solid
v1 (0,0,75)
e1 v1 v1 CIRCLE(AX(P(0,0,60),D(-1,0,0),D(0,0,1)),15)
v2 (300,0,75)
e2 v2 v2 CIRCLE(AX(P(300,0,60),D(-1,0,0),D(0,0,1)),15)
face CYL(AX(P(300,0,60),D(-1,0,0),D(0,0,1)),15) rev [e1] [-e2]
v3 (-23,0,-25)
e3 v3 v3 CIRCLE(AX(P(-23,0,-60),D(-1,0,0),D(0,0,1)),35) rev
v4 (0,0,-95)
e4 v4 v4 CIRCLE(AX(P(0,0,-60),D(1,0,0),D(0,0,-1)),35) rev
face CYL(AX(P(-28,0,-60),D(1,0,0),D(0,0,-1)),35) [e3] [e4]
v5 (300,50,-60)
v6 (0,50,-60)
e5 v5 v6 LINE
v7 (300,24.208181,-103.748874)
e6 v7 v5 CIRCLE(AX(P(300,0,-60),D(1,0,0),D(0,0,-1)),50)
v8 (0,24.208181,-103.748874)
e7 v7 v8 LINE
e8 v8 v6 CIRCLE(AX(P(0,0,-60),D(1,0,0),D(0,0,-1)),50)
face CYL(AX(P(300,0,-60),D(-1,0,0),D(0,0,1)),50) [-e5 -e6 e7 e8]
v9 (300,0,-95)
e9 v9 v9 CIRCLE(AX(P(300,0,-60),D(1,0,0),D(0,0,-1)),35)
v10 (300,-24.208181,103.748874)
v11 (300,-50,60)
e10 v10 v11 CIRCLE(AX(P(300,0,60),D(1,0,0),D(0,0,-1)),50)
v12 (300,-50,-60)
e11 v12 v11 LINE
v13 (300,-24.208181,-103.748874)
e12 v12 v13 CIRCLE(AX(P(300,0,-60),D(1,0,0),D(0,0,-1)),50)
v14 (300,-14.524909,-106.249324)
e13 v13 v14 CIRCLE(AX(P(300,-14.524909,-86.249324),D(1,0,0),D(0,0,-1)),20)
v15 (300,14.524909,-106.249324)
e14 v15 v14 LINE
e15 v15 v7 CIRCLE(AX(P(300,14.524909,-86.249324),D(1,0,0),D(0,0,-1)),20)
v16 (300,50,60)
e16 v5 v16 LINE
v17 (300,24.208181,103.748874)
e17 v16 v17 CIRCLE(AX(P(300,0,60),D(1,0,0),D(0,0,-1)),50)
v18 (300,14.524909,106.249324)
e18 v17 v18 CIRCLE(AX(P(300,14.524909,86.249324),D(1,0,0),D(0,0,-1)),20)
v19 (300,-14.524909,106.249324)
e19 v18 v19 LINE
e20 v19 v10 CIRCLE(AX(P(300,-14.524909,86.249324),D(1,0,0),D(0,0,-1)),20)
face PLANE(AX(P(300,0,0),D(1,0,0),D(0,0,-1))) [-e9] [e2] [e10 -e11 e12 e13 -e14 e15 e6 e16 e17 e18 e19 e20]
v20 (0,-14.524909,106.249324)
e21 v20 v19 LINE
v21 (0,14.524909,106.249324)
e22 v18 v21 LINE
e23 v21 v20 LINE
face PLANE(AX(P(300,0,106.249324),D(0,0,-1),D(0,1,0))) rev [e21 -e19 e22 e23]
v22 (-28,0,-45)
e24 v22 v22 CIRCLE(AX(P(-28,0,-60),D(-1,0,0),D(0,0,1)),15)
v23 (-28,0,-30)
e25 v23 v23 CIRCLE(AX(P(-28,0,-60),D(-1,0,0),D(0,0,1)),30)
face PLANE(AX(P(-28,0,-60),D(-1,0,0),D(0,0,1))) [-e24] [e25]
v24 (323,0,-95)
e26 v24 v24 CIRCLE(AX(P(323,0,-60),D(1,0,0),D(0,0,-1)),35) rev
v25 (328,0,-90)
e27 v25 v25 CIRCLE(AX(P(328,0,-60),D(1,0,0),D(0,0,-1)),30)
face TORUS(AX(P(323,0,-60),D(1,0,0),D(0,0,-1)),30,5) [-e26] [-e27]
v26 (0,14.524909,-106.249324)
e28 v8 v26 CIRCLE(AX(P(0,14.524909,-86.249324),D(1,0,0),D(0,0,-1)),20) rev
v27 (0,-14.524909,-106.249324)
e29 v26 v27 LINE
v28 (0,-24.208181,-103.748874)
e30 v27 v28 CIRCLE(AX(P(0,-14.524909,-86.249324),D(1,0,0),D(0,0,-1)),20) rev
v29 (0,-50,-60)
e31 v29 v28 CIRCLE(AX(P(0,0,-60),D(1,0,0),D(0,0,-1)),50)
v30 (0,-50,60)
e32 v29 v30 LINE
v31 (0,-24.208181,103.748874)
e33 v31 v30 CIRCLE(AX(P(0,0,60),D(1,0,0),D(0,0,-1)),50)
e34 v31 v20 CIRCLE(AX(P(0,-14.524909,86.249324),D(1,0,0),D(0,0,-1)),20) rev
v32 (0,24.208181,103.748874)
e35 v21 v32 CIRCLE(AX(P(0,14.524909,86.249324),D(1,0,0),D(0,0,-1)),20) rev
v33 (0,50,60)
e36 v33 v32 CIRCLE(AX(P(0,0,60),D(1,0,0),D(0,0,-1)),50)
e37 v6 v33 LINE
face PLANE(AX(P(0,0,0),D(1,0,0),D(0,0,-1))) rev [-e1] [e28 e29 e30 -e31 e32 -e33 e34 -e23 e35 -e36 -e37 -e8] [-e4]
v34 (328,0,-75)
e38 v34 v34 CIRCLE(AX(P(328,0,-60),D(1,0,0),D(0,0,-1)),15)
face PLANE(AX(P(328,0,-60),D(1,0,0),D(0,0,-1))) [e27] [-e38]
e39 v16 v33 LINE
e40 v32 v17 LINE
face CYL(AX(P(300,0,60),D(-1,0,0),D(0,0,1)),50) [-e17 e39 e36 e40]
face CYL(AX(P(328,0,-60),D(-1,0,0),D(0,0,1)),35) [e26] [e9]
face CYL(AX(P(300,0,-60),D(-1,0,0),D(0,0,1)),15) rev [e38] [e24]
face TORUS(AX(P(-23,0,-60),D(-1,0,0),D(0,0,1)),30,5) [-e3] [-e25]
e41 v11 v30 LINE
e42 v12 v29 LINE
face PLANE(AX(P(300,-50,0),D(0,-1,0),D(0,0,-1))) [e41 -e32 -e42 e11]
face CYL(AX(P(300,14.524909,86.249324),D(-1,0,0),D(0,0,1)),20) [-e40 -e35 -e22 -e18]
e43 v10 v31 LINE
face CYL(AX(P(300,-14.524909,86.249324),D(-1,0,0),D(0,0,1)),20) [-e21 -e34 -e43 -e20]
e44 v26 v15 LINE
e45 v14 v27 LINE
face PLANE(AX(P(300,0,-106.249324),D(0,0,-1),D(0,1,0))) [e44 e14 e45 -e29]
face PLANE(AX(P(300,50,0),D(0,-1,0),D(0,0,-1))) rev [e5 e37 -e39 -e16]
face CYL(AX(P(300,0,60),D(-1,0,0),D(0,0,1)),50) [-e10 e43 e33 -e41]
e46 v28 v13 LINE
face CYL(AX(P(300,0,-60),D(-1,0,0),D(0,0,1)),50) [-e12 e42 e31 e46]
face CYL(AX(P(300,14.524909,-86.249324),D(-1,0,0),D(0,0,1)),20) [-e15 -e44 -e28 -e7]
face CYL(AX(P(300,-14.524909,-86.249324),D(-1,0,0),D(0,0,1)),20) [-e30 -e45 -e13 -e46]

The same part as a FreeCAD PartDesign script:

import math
import FreeCAD as App
import Part
import Sketcher


def edges_at(feature, points):
    """Names of the edges that pass closest to the given points."""
    edges = feature.Shape.Edges
    near = lambda p: min(range(len(edges)), key=lambda i: edges[i].distToShape(Part.Vertex(*p))[0])
    return sorted({f"Edge{near(p) + 1}" for p in points})

doc = App.newDocument("Part")
body = doc.addObject("PartDesign::Body", "Body")

# Sketch on YZ plane
sketch1 = body.newObject("Sketcher::SketchObject", "Sketch")
sketch1.AttachmentSupport = (doc.getObject("YZ_Plane"), [""])
sketch1.MapMode = "FlatFace"
sketch1.addGeometry([
    Part.LineSegment(App.Vector(50, -60, 0), App.Vector(50, 60, 0)),  # 0
    Part.ArcOfCircle(Part.Circle(App.Vector(0, 60, 0), App.Vector(0, 0, 1), 50), math.radians(0), math.radians(68)),  # 1
    Part.LineSegment(App.Vector(19, 106, 0), App.Vector(-19, 106, 0)),  # 2
    Part.ArcOfCircle(Part.Circle(App.Vector(0, 60, 0), App.Vector(0, 0, 1), 50), math.radians(112), math.radians(180)),  # 3
    Part.LineSegment(App.Vector(-50, 60, 0), App.Vector(-50, -60, 0)),  # 4
    Part.ArcOfCircle(Part.Circle(App.Vector(0, -60, 0), App.Vector(0, 0, 1), 50), math.radians(180), math.radians(248)),  # 5
    Part.LineSegment(App.Vector(-19, -106, 0), App.Vector(19, -106, 0)),  # 6
    Part.ArcOfCircle(Part.Circle(App.Vector(0, -60, 0), App.Vector(0, 0, 1), 50), math.radians(-68), math.radians(0)),  # 7
], False)
sketch1.addConstraint([
    Sketcher.Constraint("Tangent", 0, 2, 1, 1),
    Sketcher.Constraint("Coincident", 1, 2, 2, 1),
    Sketcher.Constraint("Coincident", 2, 2, 3, 1),
    Sketcher.Constraint("Tangent", 3, 2, 4, 1),
    Sketcher.Constraint("Tangent", 4, 2, 5, 1),
    Sketcher.Constraint("Coincident", 5, 2, 6, 1),
    Sketcher.Constraint("Coincident", 6, 2, 7, 1),
    Sketcher.Constraint("Tangent", 7, 2, 0, 1),
    Sketcher.Constraint("Vertical", 0),
    Sketcher.Constraint("Horizontal", 2),
    Sketcher.Constraint("Vertical", 4),
    Sketcher.Constraint("Horizontal", 6),
    Sketcher.Constraint("Coincident", 3, 3, 1, 3),
    Sketcher.Constraint("Coincident", 7, 3, 5, 3),
    Sketcher.Constraint("Equal", 1, 3),
    Sketcher.Constraint("Equal", 3, 5),
    Sketcher.Constraint("Symmetric", 1, 3, 5, 3, -1, 1),
    Sketcher.Constraint("Vertical", 2, 2, 5, 2),
    Sketcher.Constraint("Radius", 1, 50.0),
    Sketcher.Constraint("DistanceX", 2, 2, 2, 1, 38.0),
    Sketcher.Constraint("DistanceY", 0, 1, 0, 2, 120.0),
])
pad1 = body.newObject("PartDesign::Pad", "Pad")
pad1.Profile = sketch1
pad1.Length = 300

# Sketch on YZ plane
sketch2 = body.newObject("Sketcher::SketchObject", "Sketch001")
sketch2.AttachmentSupport = (doc.getObject("YZ_Plane"), [""])
sketch2.MapMode = "FlatFace"
sketch2.addGeometry([
    Part.Circle(App.Vector(0, 60, 0), App.Vector(0, 0, 1), 15),
    Part.Circle(App.Vector(0, -60, 0), App.Vector(0, 0, 1), 15),
], False)
sketch2.addConstraint([
    Sketcher.Constraint("Equal", 0, 1),
    Sketcher.Constraint("Symmetric", 0, 3, 1, 3, -1, 1),
    Sketcher.Constraint("PointOnObject", 0, 3, -2),
    Sketcher.Constraint("Diameter", 0, 30.0),
    Sketcher.Constraint("DistanceY", -1, 1, 0, 3, 60.0),
])
pocket1 = body.newObject("PartDesign::Pocket", "Pocket")
pocket1.Profile = sketch2
pocket1.Length = 300
pocket1.Reversed = True

# Sketch on YZ plane
sketch3 = body.newObject("Sketcher::SketchObject", "Sketch002")
sketch3.AttachmentSupport = (doc.getObject("YZ_Plane"), [""])
sketch3.MapMode = "FlatFace"
sketch3.addGeometry([
    Part.Circle(App.Vector(0, -60, 0), App.Vector(0, 0, 1), 35),
    Part.Circle(App.Vector(0, -60, 0), App.Vector(0, 0, 1), 15),
], False)
sketch3.addConstraint([
    Sketcher.Constraint("Coincident", 1, 3, 0, 3),
    Sketcher.Constraint("PointOnObject", 0, 3, -2),
    Sketcher.Constraint("Diameter", 0, 70.0),
    Sketcher.Constraint("Diameter", 1, 30.0),
    Sketcher.Constraint("DistanceY", 0, 3, -1, 1, 60.0),
])
pad2 = body.newObject("PartDesign::Pad", "Pad001")
pad2.Profile = sketch3
pad2.Length = 28
pad2.Reversed = True

# Sketch on YZ plane
sketch4 = body.newObject("Sketcher::SketchObject", "Sketch003")
sketch4.AttachmentSupport = (doc.getObject("YZ_Plane"), [""])
sketch4.MapMode = "FlatFace"
sketch4.AttachmentOffset = App.Placement(App.Vector(0, 0, 300), App.Rotation())
sketch4.addGeometry([
    Part.Circle(App.Vector(0, -60, 0), App.Vector(0, 0, 1), 35),
    Part.Circle(App.Vector(0, -60, 0), App.Vector(0, 0, 1), 15),
], False)
sketch4.addConstraint([
    Sketcher.Constraint("Coincident", 1, 3, 0, 3),
    Sketcher.Constraint("PointOnObject", 0, 3, -2),
    Sketcher.Constraint("Diameter", 0, 70.0),
    Sketcher.Constraint("Diameter", 1, 30.0),
    Sketcher.Constraint("DistanceY", 0, 3, -1, 1, 60.0),
])
pad3 = body.newObject("PartDesign::Pad", "Pad002")
pad3.Profile = sketch4
pad3.Length = 28
doc.recompute()

fillet = body.newObject("PartDesign::Fillet", "Fillet")
fillet.Base = (pad3, edges_at(pad3, [(-28, 0, -95), (328, 0, -25)]))
fillet.Radius = 5
doc.recompute()

fillet2 = body.newObject("PartDesign::Fillet", "Fillet001")
fillet2.Base = (fillet, edges_at(fillet, [
    (150, -19, 106.249),
    (150, 19, 106.249),
    (150, 19, -106.249),
    (150, -19, -106.249),
]))
fillet2.Radius = 20

doc.recompute()
